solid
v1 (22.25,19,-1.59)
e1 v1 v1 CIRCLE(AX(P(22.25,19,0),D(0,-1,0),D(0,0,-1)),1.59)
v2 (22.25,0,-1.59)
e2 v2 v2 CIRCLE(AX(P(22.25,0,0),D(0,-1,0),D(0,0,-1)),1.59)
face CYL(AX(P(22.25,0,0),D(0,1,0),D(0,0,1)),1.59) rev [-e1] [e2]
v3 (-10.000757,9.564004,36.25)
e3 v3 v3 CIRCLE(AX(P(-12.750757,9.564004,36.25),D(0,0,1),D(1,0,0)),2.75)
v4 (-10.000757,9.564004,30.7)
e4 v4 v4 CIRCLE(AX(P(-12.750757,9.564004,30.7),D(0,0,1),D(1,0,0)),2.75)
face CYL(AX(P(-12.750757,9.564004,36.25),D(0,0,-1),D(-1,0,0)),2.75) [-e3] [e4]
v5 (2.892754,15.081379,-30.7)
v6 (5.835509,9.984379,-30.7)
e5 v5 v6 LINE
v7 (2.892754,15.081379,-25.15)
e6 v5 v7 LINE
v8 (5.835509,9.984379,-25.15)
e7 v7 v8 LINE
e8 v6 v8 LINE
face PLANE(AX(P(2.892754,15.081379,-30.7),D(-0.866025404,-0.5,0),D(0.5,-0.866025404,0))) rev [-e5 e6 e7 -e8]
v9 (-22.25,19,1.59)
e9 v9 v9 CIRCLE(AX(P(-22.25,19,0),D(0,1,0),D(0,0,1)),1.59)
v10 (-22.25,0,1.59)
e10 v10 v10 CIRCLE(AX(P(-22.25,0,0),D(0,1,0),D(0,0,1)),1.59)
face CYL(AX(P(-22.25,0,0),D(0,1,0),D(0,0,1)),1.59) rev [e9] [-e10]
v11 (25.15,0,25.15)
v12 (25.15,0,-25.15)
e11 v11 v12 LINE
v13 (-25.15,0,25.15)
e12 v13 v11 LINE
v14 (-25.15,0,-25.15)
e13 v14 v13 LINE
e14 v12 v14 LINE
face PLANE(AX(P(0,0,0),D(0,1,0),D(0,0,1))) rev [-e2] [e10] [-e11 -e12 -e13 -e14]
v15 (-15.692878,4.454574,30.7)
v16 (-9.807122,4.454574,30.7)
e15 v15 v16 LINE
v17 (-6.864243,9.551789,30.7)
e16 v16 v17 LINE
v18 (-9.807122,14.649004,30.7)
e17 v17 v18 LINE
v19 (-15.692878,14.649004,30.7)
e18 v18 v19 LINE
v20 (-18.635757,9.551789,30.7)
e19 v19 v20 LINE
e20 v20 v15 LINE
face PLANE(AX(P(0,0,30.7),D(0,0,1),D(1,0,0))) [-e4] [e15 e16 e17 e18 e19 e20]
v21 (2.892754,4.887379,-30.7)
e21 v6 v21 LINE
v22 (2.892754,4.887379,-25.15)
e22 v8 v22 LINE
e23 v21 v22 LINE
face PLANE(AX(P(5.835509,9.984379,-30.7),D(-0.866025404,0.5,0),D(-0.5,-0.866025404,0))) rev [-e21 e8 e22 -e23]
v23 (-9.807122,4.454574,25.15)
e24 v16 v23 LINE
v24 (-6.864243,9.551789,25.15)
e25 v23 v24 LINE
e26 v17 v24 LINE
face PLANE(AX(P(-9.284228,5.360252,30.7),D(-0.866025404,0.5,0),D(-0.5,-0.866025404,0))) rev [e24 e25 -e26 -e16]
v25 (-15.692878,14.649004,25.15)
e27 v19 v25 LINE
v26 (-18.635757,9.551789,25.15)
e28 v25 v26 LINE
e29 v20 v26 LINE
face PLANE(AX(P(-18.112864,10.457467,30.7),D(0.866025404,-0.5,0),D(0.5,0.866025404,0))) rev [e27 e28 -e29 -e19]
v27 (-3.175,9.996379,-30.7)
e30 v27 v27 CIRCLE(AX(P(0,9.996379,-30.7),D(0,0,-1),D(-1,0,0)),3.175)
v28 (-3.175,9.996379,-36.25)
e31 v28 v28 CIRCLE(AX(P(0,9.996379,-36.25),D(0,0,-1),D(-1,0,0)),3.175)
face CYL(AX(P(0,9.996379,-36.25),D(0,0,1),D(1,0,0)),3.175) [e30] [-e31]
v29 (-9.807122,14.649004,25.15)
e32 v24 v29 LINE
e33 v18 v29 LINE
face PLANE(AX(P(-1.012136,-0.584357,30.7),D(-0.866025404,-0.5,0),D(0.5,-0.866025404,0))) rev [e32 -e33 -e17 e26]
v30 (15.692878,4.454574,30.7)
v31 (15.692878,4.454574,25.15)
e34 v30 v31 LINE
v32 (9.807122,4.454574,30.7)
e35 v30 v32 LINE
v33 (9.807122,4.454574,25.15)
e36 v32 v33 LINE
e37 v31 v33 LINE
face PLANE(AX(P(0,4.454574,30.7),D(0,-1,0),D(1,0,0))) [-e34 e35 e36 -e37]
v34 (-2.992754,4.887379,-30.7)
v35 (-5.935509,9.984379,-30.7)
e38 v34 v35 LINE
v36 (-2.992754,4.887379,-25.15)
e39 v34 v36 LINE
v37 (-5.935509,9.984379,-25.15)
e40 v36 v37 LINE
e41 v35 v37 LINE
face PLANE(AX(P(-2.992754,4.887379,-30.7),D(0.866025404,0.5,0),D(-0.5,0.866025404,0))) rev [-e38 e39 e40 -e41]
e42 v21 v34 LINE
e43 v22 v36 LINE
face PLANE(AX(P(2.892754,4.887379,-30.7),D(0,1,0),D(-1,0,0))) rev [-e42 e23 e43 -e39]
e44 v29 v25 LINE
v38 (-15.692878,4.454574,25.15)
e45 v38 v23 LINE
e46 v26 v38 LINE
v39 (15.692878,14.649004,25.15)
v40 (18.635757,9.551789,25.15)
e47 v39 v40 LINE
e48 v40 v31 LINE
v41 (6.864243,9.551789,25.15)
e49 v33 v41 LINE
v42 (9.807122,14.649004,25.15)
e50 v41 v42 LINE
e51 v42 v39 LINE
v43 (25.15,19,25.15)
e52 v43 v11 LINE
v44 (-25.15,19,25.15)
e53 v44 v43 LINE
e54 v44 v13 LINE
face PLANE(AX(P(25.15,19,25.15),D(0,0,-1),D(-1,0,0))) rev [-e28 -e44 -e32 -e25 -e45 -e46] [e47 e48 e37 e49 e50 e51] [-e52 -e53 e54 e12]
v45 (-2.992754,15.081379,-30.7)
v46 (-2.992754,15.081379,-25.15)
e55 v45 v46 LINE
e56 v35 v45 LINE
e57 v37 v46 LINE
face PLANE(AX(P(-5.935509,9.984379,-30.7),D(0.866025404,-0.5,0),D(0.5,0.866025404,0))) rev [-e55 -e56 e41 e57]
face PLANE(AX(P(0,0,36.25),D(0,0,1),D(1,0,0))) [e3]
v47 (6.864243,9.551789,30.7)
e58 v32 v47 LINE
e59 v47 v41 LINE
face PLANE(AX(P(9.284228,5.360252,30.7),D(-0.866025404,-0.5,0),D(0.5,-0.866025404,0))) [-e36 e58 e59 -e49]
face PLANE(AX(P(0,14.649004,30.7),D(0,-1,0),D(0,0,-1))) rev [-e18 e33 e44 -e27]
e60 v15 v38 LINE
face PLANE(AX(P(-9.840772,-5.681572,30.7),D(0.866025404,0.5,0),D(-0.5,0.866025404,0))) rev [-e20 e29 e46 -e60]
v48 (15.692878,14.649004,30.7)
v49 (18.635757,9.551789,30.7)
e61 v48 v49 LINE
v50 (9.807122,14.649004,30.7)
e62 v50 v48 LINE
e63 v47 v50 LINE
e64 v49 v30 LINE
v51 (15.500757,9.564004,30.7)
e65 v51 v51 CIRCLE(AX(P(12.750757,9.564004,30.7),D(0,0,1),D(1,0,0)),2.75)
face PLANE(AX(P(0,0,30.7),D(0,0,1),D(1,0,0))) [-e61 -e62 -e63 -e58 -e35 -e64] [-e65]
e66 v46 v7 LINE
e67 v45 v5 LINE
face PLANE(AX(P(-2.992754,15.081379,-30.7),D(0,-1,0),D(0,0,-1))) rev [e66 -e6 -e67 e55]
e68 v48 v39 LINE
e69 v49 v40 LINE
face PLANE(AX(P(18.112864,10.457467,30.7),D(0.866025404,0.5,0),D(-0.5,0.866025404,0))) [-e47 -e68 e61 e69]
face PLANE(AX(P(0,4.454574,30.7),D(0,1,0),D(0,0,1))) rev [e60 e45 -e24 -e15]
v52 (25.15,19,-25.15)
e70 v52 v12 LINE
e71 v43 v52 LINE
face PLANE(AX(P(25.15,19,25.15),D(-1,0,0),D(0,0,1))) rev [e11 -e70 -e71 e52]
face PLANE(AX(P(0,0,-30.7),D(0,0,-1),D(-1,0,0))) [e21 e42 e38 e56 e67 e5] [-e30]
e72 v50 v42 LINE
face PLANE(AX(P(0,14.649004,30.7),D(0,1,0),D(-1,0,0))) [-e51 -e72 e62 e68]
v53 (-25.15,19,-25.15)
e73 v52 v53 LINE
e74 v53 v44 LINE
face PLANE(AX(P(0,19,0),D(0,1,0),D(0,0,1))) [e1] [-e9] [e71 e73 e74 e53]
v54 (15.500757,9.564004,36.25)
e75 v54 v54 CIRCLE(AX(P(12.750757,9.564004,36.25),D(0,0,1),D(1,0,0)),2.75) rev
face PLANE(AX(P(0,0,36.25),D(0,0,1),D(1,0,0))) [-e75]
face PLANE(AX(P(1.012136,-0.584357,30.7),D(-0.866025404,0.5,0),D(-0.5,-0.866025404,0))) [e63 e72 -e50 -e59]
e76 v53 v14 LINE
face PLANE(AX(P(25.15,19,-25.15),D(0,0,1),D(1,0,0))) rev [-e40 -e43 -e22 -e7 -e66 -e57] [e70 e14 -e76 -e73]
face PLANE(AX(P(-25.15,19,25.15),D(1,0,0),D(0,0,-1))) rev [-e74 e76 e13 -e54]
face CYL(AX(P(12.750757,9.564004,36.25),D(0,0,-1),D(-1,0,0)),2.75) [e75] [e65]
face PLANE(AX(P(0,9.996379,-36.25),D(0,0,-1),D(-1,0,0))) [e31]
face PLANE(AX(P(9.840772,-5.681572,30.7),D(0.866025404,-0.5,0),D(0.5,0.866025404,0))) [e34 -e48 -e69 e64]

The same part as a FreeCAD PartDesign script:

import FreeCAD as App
import Part
import Sketcher

V = App.Vector
Q = App.Units.Quantity

doc = App.newDocument("Part")
params = doc.addObject("Spreadsheet::Sheet", "Params")
for row, (alias, value) in enumerate([
    ("sketch1_width", "50.3 mm"),
    ("pad1_length", "19 mm"),
    ("pad2_length", "5.55 mm"),
    ("pad3_length", "5.55 mm"),
    ("sketch4_diameter", "6.35 mm"),
    ("pad4_length", "5.55 mm"),
    ("sketch5_diameter", "5.5 mm"),
    ("pad5_length", "5.55 mm"),
    ("sketch6_diameter", "3.18 mm"),
], start=1):
    params.set(f"A{row}", alias)
    params.set(f"B{row}", "=" + value)
    params.setAlias(f"B{row}", alias)

body = doc.addObject("PartDesign::Body", "Body")

sketch1 = body.newObject("Sketcher::SketchObject", "Sketch")
sketch1.AttachmentSupport = (doc.getObject("XZ_Plane"), [""])
sketch1.MapMode = "FlatFace"
sketch1.addGeometry([
    Part.LineSegment(V(-25.15, -25.15, 0), V(-25.15, 25.15, 0)),
    Part.LineSegment(V(-25.15, 25.15, 0), V(25.15, 25.15, 0)),
    Part.LineSegment(V(25.15, 25.15, 0), V(25.15, -25.15, 0)),
    Part.LineSegment(V(25.15, -25.15, 0), V(-25.15, -25.15, 0)),
], False)
sketch1.addConstraint([
    Sketcher.Constraint("Coincident", 0, 2, 1, 1),
    Sketcher.Constraint("Coincident", 1, 2, 2, 1),
    Sketcher.Constraint("Coincident", 2, 2, 3, 1),
    Sketcher.Constraint("Coincident", 3, 2, 0, 1),
    Sketcher.Constraint("Vertical", 0),
    Sketcher.Constraint("Horizontal", 1),
    Sketcher.Constraint("Vertical", 2),
    Sketcher.Constraint("Horizontal", 3),
    Sketcher.Constraint("Symmetric", 0, 2, 2, 2, -1, 1),
    Sketcher.Constraint("Equal", 3, 0),
    Sketcher.Constraint("DistanceX", 1, 1, 1, 2, 50.3),
])
sketch1.setExpression("Constraints[10]", "Params.sketch1_width")
pad1 = body.newObject("PartDesign::Pad", "Pad")
pad1.Profile = sketch1
pad1.setExpression("Length", "Params.pad1_length")
pad1.Reversed = True

sketch2 = body.newObject("Sketcher::SketchObject", "Sketch001")
sketch2.AttachmentSupport = (doc.getObject("XY_Plane"), [""])
sketch2.MapMode = "FlatFace"
sketch2.AttachmentOffset = App.Placement(V(0, 0, 25.15), App.Rotation())
sketch2.addGeometry([
    Part.LineSegment(V(-15.692878, 14.649004, 0), V(-18.635757, 9.551789, 0)),
    Part.LineSegment(V(-18.635757, 9.551789, 0), V(-15.692878, 4.454574, 0)),
    Part.LineSegment(V(-15.692878, 4.454574, 0), V(-9.807122, 4.454574, 0)),
    Part.LineSegment(V(-9.807122, 4.454574, 0), V(-6.864243, 9.551789, 0)),
    Part.LineSegment(V(-6.864243, 9.551789, 0), V(-9.807122, 14.649004, 0)),
    Part.LineSegment(V(-9.807122, 14.649004, 0), V(-15.692878, 14.649004, 0)),
    Part.LineSegment(V(15.692878, 4.454574, 0), V(18.635757, 9.551789, 0)),
    Part.LineSegment(V(18.635757, 9.551789, 0), V(15.692878, 14.649004, 0)),
    Part.LineSegment(V(15.692878, 14.649004, 0), V(9.807122, 14.649004, 0)),
    Part.LineSegment(V(9.807122, 14.649004, 0), V(6.864243, 9.551789, 0)),
    Part.LineSegment(V(6.864243, 9.551789, 0), V(9.807122, 4.454574, 0)),
    Part.LineSegment(V(9.807122, 4.454574, 0), V(15.692878, 4.454574, 0)),
], False)
sketch2.addConstraint([
    Sketcher.Constraint("Coincident", 0, 2, 1, 1),
    Sketcher.Constraint("Coincident", 1, 2, 2, 1),
    Sketcher.Constraint("Coincident", 2, 2, 3, 1),
    Sketcher.Constraint("Coincident", 3, 2, 4, 1),
    Sketcher.Constraint("Coincident", 4, 2, 5, 1),
    Sketcher.Constraint("Coincident", 5, 2, 0, 1),
    Sketcher.Constraint("Coincident", 6, 2, 7, 1),
    Sketcher.Constraint("Coincident", 7, 2, 8, 1),
    Sketcher.Constraint("Coincident", 8, 2, 9, 1),
    Sketcher.Constraint("Coincident", 9, 2, 10, 1),
    Sketcher.Constraint("Coincident", 10, 2, 11, 1),
    Sketcher.Constraint("Coincident", 11, 2, 6, 1),
    Sketcher.Constraint("Horizontal", 2),
    Sketcher.Constraint("Horizontal", 5),
    Sketcher.Constraint("Horizontal", 8),
    Sketcher.Constraint("Horizontal", 11),
    Sketcher.Constraint("Symmetric", 0, 2, 6, 2, -2),
    Sketcher.Constraint("Symmetric", 5, 2, 7, 2, -2),
    Sketcher.Constraint("Symmetric", 3, 2, 9, 2, -2),
    Sketcher.Constraint("Symmetric", 2, 2, 10, 2, -2),
    Sketcher.Constraint("Parallel", 0, 3),
    Sketcher.Constraint("Parallel", 1, 4),
    Sketcher.Constraint("Parallel", 3, 6),
    Sketcher.Constraint("Parallel", 4, 7),
    Sketcher.Constraint("Parallel", 6, 9),
    Sketcher.Constraint("Horizontal", 0, 2, 3, 2),
    Sketcher.Constraint("Vertical", 2, 2, 4, 2),
    Sketcher.Constraint("Angle", 0, Q("-120 deg")),
    Sketcher.Constraint("DistanceX", 3, 2, 6, 2, 25.5),
    Sketcher.Constraint("DistanceX", 2, 1, 2, 2, 5.885757),
    Sketcher.Constraint("DistanceY", -1, 1, 0, 2, 9.551789),
    Sketcher.Constraint("DistanceX", 0, 2, 1, 2, 2.942878),
])
pad2 = body.newObject("PartDesign::Pad", "Pad001")
pad2.Profile = sketch2
pad2.setExpression("Length", "Params.pad2_length")

sketch3 = body.newObject("Sketcher::SketchObject", "Sketch002")
sketch3.AttachmentSupport = (doc.getObject("XY_Plane"), [""])
sketch3.MapMode = "FlatFace"
sketch3.AttachmentOffset = App.Placement(V(0, 0, -25.15), App.Rotation())
sketch3.addGeometry([
    Part.LineSegment(V(5.835509, 9.984379, 0), V(2.892754, 4.887379, 0)),
    Part.LineSegment(V(2.892754, 4.887379, 0), V(-2.992754, 4.887379, 0)),
    Part.LineSegment(V(-2.992754, 4.887379, 0), V(-5.935509, 9.984379, 0)),
    Part.LineSegment(V(-5.935509, 9.984379, 0), V(-2.992754, 15.081379, 0)),
    Part.LineSegment(V(-2.992754, 15.081379, 0), V(2.892754, 15.081379, 0)),
    Part.LineSegment(V(2.892754, 15.081379, 0), V(5.835509, 9.984379, 0)),
], False)
sketch3.addConstraint([
    Sketcher.Constraint("Coincident", 0, 2, 1, 1),
    Sketcher.Constraint("Coincident", 1, 2, 2, 1),
    Sketcher.Constraint("Coincident", 2, 2, 3, 1),
    Sketcher.Constraint("Coincident", 3, 2, 4, 1),
    Sketcher.Constraint("Coincident", 4, 2, 5, 1),
    Sketcher.Constraint("Coincident", 5, 2, 0, 1),
    Sketcher.Constraint("Horizontal", 1),
    Sketcher.Constraint("Horizontal", 4),
    Sketcher.Constraint("Parallel", 0, 3),
    Sketcher.Constraint("Parallel", 2, 5),
    Sketcher.Constraint("Horizontal", 2, 2, 5, 2),
    Sketcher.Constraint("Vertical", 1, 2, 3, 2),
    Sketcher.Constraint("Vertical", 0, 2, 4, 2),
    Sketcher.Constraint("Angle", 0, Q("-120 deg")),
    Sketcher.Constraint("DistanceY", 1, 2, 2, 2, 5.097),
    Sketcher.Constraint("DistanceX", 1, 2, 1, 1, 5.885509),
    Sketcher.Constraint("DistanceY", -1, 1, 0, 2, 4.887379),
    Sketcher.Constraint("DistanceX", 2, 2, -1, 1, 5.935509),
])
pad3 = body.newObject("PartDesign::Pad", "Pad002")
pad3.Profile = sketch3
pad3.setExpression("Length", "Params.pad3_length")
pad3.Reversed = True

sketch4 = body.newObject("Sketcher::SketchObject", "Sketch003")
sketch4.AttachmentSupport = (doc.getObject("XY_Plane"), [""])
sketch4.MapMode = "FlatFace"
sketch4.AttachmentOffset = App.Placement(V(0, 0, -30.7), App.Rotation())
sketch4.addGeometry(Part.Circle(V(0, 9.996379, 0), V(0, 0, 1), 3.175), False)
sketch4.addConstraint([
    Sketcher.Constraint("PointOnObject", 0, 3, -2),
    Sketcher.Constraint("Diameter", 0, 6.35),
    Sketcher.Constraint("DistanceY", -1, 1, 0, 3, 9.996379),
])
sketch4.setExpression("Constraints[1]", "Params.sketch4_diameter")
pad4 = body.newObject("PartDesign::Pad", "Pad003")
pad4.Profile = sketch4
pad4.setExpression("Length", "Params.pad4_length")
pad4.Reversed = True

sketch5 = body.newObject("Sketcher::SketchObject", "Sketch004")
sketch5.AttachmentSupport = (doc.getObject("XY_Plane"), [""])
sketch5.MapMode = "FlatFace"
sketch5.AttachmentOffset = App.Placement(V(0, 0, 30.7), App.Rotation())
sketch5.addGeometry([
    Part.Circle(V(-12.750757, 9.564004, 0), V(0, 0, 1), 2.75),
    Part.Circle(V(12.750757, 9.564004, 0), V(0, 0, 1), 2.75),
], False)
sketch5.addConstraint([
    Sketcher.Constraint("Equal", 0, 1),
    Sketcher.Constraint("Symmetric", 0, 3, 1, 3, -2),
    Sketcher.Constraint("Diameter", 0, 5.5),
    Sketcher.Constraint("DistanceX", 0, 3, -1, 1, 12.750757),
    Sketcher.Constraint("DistanceY", -1, 1, 0, 3, 9.564004),
])
sketch5.setExpression("Constraints[2]", "Params.sketch5_diameter")
pad5 = body.newObject("PartDesign::Pad", "Pad004")
pad5.Profile = sketch5
pad5.setExpression("Length", "Params.pad5_length")

sketch6 = body.newObject("Sketcher::SketchObject", "Sketch005")
sketch6.AttachmentSupport = (doc.getObject("XZ_Plane"), [""])
sketch6.MapMode = "FlatFace"
sketch6.AttachmentOffset = App.Placement(V(0, 0, -19), App.Rotation())
sketch6.addGeometry([
    Part.Circle(V(-22.25, 0, 0), V(0, 0, 1), 1.59),
    Part.Circle(V(22.25, 0, 0), V(0, 0, 1), 1.59),
], False)
sketch6.addConstraint([
    Sketcher.Constraint("Equal", 0, 1),
    Sketcher.Constraint("Symmetric", 0, 3, 1, 3, -1, 1),
    Sketcher.Constraint("PointOnObject", 0, 3, -1),
    Sketcher.Constraint("Diameter", 0, 3.18),
    Sketcher.Constraint("DistanceX", 0, 3, 1, 3, 44.5),
])
sketch6.setExpression("Constraints[3]", "Params.sketch6_diameter")
pocket1 = body.newObject("PartDesign::Pocket", "Pocket")
pocket1.Profile = sketch6
pocket1.Type = "ThroughAll"
pocket1.Reversed = True

doc.recompute()
